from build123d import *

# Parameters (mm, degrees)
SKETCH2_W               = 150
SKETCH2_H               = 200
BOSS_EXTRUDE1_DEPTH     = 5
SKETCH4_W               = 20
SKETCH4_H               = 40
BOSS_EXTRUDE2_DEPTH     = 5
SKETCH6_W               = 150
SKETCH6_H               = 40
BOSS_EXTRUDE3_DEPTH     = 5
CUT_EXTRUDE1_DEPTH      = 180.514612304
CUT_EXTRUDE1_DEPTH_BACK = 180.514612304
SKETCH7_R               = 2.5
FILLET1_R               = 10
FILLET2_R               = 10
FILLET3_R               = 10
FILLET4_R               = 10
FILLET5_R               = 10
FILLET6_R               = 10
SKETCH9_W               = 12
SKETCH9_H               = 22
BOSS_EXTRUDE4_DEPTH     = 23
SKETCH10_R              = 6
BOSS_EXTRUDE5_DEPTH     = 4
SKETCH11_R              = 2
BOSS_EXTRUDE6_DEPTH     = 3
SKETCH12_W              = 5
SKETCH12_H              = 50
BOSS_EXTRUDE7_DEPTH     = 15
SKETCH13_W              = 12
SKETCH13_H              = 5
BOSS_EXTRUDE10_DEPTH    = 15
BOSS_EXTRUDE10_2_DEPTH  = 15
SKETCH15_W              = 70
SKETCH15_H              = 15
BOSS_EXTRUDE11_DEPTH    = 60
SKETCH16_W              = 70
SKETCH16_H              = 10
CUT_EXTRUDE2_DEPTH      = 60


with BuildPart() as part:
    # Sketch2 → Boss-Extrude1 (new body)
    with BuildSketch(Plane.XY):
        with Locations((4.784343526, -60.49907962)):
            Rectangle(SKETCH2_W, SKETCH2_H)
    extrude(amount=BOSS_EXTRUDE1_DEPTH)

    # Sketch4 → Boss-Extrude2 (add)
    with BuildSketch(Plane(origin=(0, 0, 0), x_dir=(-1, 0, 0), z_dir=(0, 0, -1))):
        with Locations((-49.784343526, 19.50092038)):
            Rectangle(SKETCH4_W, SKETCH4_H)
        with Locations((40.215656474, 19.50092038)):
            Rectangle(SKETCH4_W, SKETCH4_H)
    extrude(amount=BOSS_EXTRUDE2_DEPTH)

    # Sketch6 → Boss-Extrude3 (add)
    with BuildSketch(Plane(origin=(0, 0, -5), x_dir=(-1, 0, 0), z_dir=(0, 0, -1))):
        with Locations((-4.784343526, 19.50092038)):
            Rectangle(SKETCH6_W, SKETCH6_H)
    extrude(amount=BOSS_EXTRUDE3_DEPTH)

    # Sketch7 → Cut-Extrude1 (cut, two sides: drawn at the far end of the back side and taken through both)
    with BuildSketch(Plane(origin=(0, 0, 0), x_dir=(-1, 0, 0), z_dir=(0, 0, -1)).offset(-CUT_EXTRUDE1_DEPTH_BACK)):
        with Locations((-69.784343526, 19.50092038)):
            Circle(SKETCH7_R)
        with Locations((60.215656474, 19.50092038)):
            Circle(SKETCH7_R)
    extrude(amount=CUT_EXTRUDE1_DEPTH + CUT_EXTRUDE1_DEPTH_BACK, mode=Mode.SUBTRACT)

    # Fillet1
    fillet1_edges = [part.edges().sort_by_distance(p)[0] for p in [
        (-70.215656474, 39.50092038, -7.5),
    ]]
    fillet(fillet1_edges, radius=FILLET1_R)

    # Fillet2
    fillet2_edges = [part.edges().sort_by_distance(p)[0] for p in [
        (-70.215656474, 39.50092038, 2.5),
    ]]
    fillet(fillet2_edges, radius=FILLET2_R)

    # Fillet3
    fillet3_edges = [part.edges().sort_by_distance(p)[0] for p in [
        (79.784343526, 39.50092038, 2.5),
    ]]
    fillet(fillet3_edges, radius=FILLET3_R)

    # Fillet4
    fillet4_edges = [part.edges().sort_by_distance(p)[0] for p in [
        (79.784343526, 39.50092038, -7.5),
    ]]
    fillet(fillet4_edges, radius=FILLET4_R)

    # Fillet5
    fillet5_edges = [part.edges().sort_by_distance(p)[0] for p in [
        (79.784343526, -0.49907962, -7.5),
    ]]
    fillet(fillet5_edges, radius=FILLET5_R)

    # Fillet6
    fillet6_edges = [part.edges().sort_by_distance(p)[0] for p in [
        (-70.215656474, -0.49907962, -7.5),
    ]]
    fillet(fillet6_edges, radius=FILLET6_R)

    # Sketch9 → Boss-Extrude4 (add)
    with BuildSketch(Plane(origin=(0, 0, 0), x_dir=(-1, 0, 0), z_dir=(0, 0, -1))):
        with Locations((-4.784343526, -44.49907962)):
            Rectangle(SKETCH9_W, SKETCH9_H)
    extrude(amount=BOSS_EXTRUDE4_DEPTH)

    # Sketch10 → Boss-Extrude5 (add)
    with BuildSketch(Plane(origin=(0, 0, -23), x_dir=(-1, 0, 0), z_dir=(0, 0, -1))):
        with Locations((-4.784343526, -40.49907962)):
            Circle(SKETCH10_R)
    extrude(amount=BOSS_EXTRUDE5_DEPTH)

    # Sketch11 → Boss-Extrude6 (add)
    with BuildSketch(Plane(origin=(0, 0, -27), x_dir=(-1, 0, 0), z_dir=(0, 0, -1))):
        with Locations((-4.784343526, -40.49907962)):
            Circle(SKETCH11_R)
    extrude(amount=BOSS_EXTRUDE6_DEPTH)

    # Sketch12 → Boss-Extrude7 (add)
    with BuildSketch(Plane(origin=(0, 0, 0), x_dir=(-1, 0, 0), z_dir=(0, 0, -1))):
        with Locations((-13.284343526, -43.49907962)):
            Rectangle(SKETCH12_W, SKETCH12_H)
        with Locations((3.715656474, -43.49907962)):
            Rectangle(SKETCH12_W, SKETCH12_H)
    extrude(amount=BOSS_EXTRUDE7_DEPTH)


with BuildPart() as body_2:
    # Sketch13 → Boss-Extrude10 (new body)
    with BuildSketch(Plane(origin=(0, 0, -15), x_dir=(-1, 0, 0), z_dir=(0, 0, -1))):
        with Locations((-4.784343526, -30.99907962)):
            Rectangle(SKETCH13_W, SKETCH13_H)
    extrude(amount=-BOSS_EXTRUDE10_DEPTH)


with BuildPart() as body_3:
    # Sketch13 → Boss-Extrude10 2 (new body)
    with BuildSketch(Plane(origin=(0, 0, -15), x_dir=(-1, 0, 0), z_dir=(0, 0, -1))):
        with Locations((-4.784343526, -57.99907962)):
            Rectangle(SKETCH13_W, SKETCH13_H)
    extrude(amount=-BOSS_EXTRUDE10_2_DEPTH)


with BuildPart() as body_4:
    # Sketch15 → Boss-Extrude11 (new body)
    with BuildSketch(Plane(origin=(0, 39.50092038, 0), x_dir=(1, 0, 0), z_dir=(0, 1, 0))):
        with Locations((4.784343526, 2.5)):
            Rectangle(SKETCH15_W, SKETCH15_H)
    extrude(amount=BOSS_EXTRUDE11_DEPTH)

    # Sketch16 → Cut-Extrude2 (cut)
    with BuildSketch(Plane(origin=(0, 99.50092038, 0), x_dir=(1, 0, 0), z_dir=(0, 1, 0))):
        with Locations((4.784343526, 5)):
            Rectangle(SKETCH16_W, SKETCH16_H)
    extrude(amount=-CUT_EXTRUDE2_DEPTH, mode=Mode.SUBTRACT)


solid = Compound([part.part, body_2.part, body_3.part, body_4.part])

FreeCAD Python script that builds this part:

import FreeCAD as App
import Part
import Sketcher
from FreeCAD import Vector


def edges_at(feature, points):
    """Names of the edges that pass closest to the given points."""
    edges = feature.Shape.Edges
    near = lambda p: min(range(len(edges)), key=lambda i: edges[i].distToShape(Part.Vertex(*p))[0])
    return sorted({f"Edge{near(p) + 1}" for p in points})

doc = App.newDocument("Part")
body = doc.addObject("PartDesign::Body", "Body")

# Sketch on XY plane
sketch1 = body.newObject("Sketcher::SketchObject", "Sketch")
sketch1.AttachmentSupport = (doc.getObject("XY_Plane"), [""])
sketch1.MapMode = "FlatFace"
sketch1.addGeometry(Part.LineSegment(Vector(-70, 40, 0), Vector(-70, -160, 0)), False)
sketch1.addGeometry(Part.LineSegment(Vector(-70, -160, 0), Vector(80, -160, 0)), False)
sketch1.addGeometry(Part.LineSegment(Vector(80, -160, 0), Vector(80, 40, 0)), False)
sketch1.addGeometry(Part.LineSegment(Vector(80, 40, 0), Vector(-70, 40, 0)), False)
sketch1.addConstraint(Sketcher.Constraint("Coincident", 0, 2, 1, 1))
sketch1.addConstraint(Sketcher.Constraint("Coincident", 1, 2, 2, 1))
sketch1.addConstraint(Sketcher.Constraint("Coincident", 2, 2, 3, 1))
sketch1.addConstraint(Sketcher.Constraint("Coincident", 3, 2, 0, 1))
sketch1.addConstraint(Sketcher.Constraint("Vertical", 0))
sketch1.addConstraint(Sketcher.Constraint("Horizontal", 1))
sketch1.addConstraint(Sketcher.Constraint("Vertical", 2))
sketch1.addConstraint(Sketcher.Constraint("Horizontal", 3))
sketch1.addConstraint(Sketcher.Constraint("DistanceX", 1, 1, 1, 2, 150.0))
sketch1.addConstraint(Sketcher.Constraint("DistanceY", 0, 2, 0, 1, 200.0))
sketch1.addConstraint(Sketcher.Constraint("DistanceY", 0, 2, -1, 1, 160.49908))
sketch1.addConstraint(Sketcher.Constraint("DistanceX", 0, 2, -1, 1, 70.215656))
pad1 = body.newObject("PartDesign::Pad", "Pad")
pad1.Profile = sketch1
pad1.Length = 5

# Sketch on XY plane
sketch2 = body.newObject("Sketcher::SketchObject", "Sketch001")
sketch2.AttachmentSupport = (doc.getObject("XY_Plane"), [""])
sketch2.MapMode = "FlatFace"
sketch2.addGeometry(Part.LineSegment(Vector(60, 40, 0), Vector(60, 0, 0)), False)
sketch2.addGeometry(Part.LineSegment(Vector(60, 0, 0), Vector(40, 0, 0)), False)
sketch2.addGeometry(Part.LineSegment(Vector(40, 0, 0), Vector(40, 40, 0)), False)
sketch2.addGeometry(Part.LineSegment(Vector(40, 40, 0), Vector(60, 40, 0)), False)
sketch2.addGeometry(Part.LineSegment(Vector(-30, 40, 0), Vector(-30, 0, 0)), False)
sketch2.addGeometry(Part.LineSegment(Vector(-30, 0, 0), Vector(-50, 0, 0)), False)
sketch2.addGeometry(Part.LineSegment(Vector(-50, 0, 0), Vector(-50, 40, 0)), False)
sketch2.addGeometry(Part.LineSegment(Vector(-50, 40, 0), Vector(-30, 40, 0)), False)
sketch2.addConstraint(Sketcher.Constraint("Coincident", 0, 2, 1, 1))
sketch2.addConstraint(Sketcher.Constraint("Coincident", 1, 2, 2, 1))
sketch2.addConstraint(Sketcher.Constraint("Coincident", 2, 2, 3, 1))
sketch2.addConstraint(Sketcher.Constraint("Coincident", 3, 2, 0, 1))
sketch2.addConstraint(Sketcher.Constraint("Coincident", 4, 2, 5, 1))
sketch2.addConstraint(Sketcher.Constraint("Coincident", 5, 2, 6, 1))
sketch2.addConstraint(Sketcher.Constraint("Coincident", 6, 2, 7, 1))
sketch2.addConstraint(Sketcher.Constraint("Coincident", 7, 2, 4, 1))
sketch2.addConstraint(Sketcher.Constraint("Vertical", 0))
sketch2.addConstraint(Sketcher.Constraint("Horizontal", 1))
sketch2.addConstraint(Sketcher.Constraint("Vertical", 2))
sketch2.addConstraint(Sketcher.Constraint("Horizontal", 3))
sketch2.addConstraint(Sketcher.Constraint("Vertical", 4))
sketch2.addConstraint(Sketcher.Constraint("Horizontal", 5))
sketch2.addConstraint(Sketcher.Constraint("Vertical", 6))
sketch2.addConstraint(Sketcher.Constraint("Horizontal", 7))
sketch2.addConstraint(Sketcher.Constraint("Horizontal", 1, 2, 4, 2))
sketch2.addConstraint(Sketcher.Constraint("Horizontal", 3, 2, 6, 2))
sketch2.addConstraint(Sketcher.Constraint("Equal", 3, 5))
sketch2.addConstraint(Sketcher.Constraint("DistanceX", 1, 2, 1, 1, 20.0))
sketch2.addConstraint(Sketcher.Constraint("DistanceY", 0, 2, 0, 1, 40.0))
sketch2.addConstraint(Sketcher.Constraint("DistanceX", 4, 2, 1, 2, 70.0))
sketch2.addConstraint(Sketcher.Constraint("DistanceY", 0, 2, -1, 1, 0.49908))
sketch2.addConstraint(Sketcher.Constraint("DistanceX", -1, 1, 0, 2, 59.784344))
pad2 = body.newObject("PartDesign::Pad", "Pad001")
pad2.Profile = sketch2
pad2.Length = 5
pad2.Reversed = True

# Sketch on XY plane
sketch3 = body.newObject("Sketcher::SketchObject", "Sketch002")
sketch3.AttachmentSupport = (doc.getObject("XY_Plane"), [""])
sketch3.MapMode = "FlatFace"
sketch3.AttachmentOffset = App.Placement(Vector(0, 0, -5), App.Rotation())
sketch3.addGeometry(Part.LineSegment(Vector(80, 40, 0), Vector(80, 0, 0)), False)
sketch3.addGeometry(Part.LineSegment(Vector(80, 0, 0), Vector(-70, 0, 0)), False)
sketch3.addGeometry(Part.LineSegment(Vector(-70, 0, 0), Vector(-70, 40, 0)), False)
sketch3.addGeometry(Part.LineSegment(Vector(-70, 40, 0), Vector(80, 40, 0)), False)
sketch3.addConstraint(Sketcher.Constraint("Coincident", 0, 2, 1, 1))
sketch3.addConstraint(Sketcher.Constraint("Coincident", 1, 2, 2, 1))
sketch3.addConstraint(Sketcher.Constraint("Coincident", 2, 2, 3, 1))
sketch3.addConstraint(Sketcher.Constraint("Coincident", 3, 2, 0, 1))
sketch3.addConstraint(Sketcher.Constraint("Vertical", 0))
sketch3.addConstraint(Sketcher.Constraint("Horizontal", 1))
sketch3.addConstraint(Sketcher.Constraint("Vertical", 2))
sketch3.addConstraint(Sketcher.Constraint("Horizontal", 3))
sketch3.addConstraint(Sketcher.Constraint("DistanceX", 1, 2, 1, 1, 150.0))
sketch3.addConstraint(Sketcher.Constraint("DistanceY", 0, 2, 0, 1, 40.0))
sketch3.addConstraint(Sketcher.Constraint("DistanceY", 0, 2, -1, 1, 0.49908))
sketch3.addConstraint(Sketcher.Constraint("DistanceX", -1, 1, 0, 2, 79.784344))
pad3 = body.newObject("PartDesign::Pad", "Pad002")
pad3.Profile = sketch3
pad3.Length = 5
pad3.Reversed = True

# Sketch on XY plane
sketch4 = body.newObject("Sketcher::SketchObject", "Sketch003")
sketch4.AttachmentSupport = (doc.getObject("XY_Plane"), [""])
sketch4.MapMode = "FlatFace"
sketch4.addGeometry(Part.Circle(Vector(69.8, 19.5, 0), Vector(0, 0, 1), 2.5), False)
sketch4.addGeometry(Part.Circle(Vector(-60.2, 19.5, 0), Vector(0, 0, 1), 2.5), False)
sketch4.addConstraint(Sketcher.Constraint("Equal", 0, 1))
sketch4.addConstraint(Sketcher.Constraint("Horizontal", 0, 3, 1, 3))
sketch4.addConstraint(Sketcher.Constraint("Diameter", 0, 5.0))
sketch4.addConstraint(Sketcher.Constraint("DistanceX", 1, 3, 0, 3, 130.0))
sketch4.addConstraint(Sketcher.Constraint("DistanceY", -1, 1, 0, 3, 19.50092))
sketch4.addConstraint(Sketcher.Constraint("DistanceX", -1, 1, 0, 3, 69.784344))
pocket1 = body.newObject("PartDesign::Pocket", "Pocket")
pocket1.Profile = sketch4
pocket1.Type = "ThroughAll"
pocket1.Midplane = True
doc.recompute()

fillet = body.newObject("PartDesign::Fillet", "Fillet")
fillet.Base = (pocket1, edges_at(pocket1, [(-70.216, 39.501, -7.5)]))
fillet.Radius = 10
doc.recompute()

fillet2 = body.newObject("PartDesign::Fillet", "Fillet001")
fillet2.Base = (fillet, edges_at(fillet, [(-70.216, 39.501, 2.5)]))
fillet2.Radius = 10
doc.recompute()

fillet3 = body.newObject("PartDesign::Fillet", "Fillet002")
fillet3.Base = (fillet2, edges_at(fillet2, [(79.784, 39.501, 2.5)]))
fillet3.Radius = 10
doc.recompute()

fillet4 = body.newObject("PartDesign::Fillet", "Fillet003")
fillet4.Base = (fillet3, edges_at(fillet3, [(79.784, 39.501, -7.5)]))
fillet4.Radius = 10
doc.recompute()

fillet5 = body.newObject("PartDesign::Fillet", "Fillet004")
fillet5.Base = (fillet4, edges_at(fillet4, [(79.784, -0.499, -7.5)]))
fillet5.Radius = 10
doc.recompute()

fillet6 = body.newObject("PartDesign::Fillet", "Fillet005")
fillet6.Base = (fillet5, edges_at(fillet5, [(-70.216, -0.499, -7.5)]))
fillet6.Radius = 10

# Sketch on XY plane
sketch5 = body.newObject("Sketcher::SketchObject", "Sketch004")
sketch5.AttachmentSupport = (doc.getObject("XY_Plane"), [""])
sketch5.MapMode = "FlatFace"
sketch5.addGeometry(Part.LineSegment(Vector(11, -33, 0), Vector(11, -55, 0)), False)
sketch5.addGeometry(Part.LineSegment(Vector(11, -55, 0), Vector(-1, -55, 0)), False)
sketch5.addGeometry(Part.LineSegment(Vector(-1, -55, 0), Vector(-1, -33, 0)), False)
sketch5.addGeometry(Part.LineSegment(Vector(-1, -33, 0), Vector(11, -33, 0)), False)
sketch5.addConstraint(Sketcher.Constraint("Coincident", 0, 2, 1, 1))
sketch5.addConstraint(Sketcher.Constraint("Coincident", 1, 2, 2, 1))
sketch5.addConstraint(Sketcher.Constraint("Coincident", 2, 2, 3, 1))
sketch5.addConstraint(Sketcher.Constraint("Coincident", 3, 2, 0, 1))
sketch5.addConstraint(Sketcher.Constraint("Vertical", 0))
sketch5.addConstraint(Sketcher.Constraint("Horizontal", 1))
sketch5.addConstraint(Sketcher.Constraint("Vertical", 2))
sketch5.addConstraint(Sketcher.Constraint("Horizontal", 3))
sketch5.addConstraint(Sketcher.Constraint("DistanceX", 1, 2, 1, 1, 12.0))
sketch5.addConstraint(Sketcher.Constraint("DistanceY", 0, 2, 0, 1, 22.0))
sketch5.addConstraint(Sketcher.Constraint("DistanceY", 0, 2, -1, 1, 55.49908))
sketch5.addConstraint(Sketcher.Constraint("DistanceX", -1, 1, 0, 2, 10.784344))
pad4 = body.newObject("PartDesign::Pad", "Pad003")
pad4.Profile = sketch5
pad4.Length = 23
pad4.Reversed = True

# Sketch on XY plane
sketch6 = body.newObject("Sketcher::SketchObject", "Sketch005")
sketch6.AttachmentSupport = (doc.getObject("XY_Plane"), [""])
sketch6.MapMode = "FlatFace"
sketch6.AttachmentOffset = App.Placement(Vector(0, 0, -23), App.Rotation())
sketch6.addGeometry(Part.Circle(Vector(5, -40, 0), Vector(0, 0, 1), 6), False)
sketch6.addConstraint(Sketcher.Constraint("Diameter", 0, 12.0))
sketch6.addConstraint(Sketcher.Constraint("DistanceY", 0, 3, -1, 1, 40.49908))
sketch6.addConstraint(Sketcher.Constraint("DistanceX", -1, 1, 0, 3, 4.784344))
pad5 = body.newObject("PartDesign::Pad", "Pad004")
pad5.Profile = sketch6
pad5.Length = 4
pad5.Reversed = True

# Sketch on XY plane
sketch7 = body.newObject("Sketcher::SketchObject", "Sketch006")
sketch7.AttachmentSupport = (doc.getObject("XY_Plane"), [""])
sketch7.MapMode = "FlatFace"
sketch7.AttachmentOffset = App.Placement(Vector(0, 0, -27), App.Rotation())
sketch7.addGeometry(Part.Circle(Vector(4.8, -40.5, 0), Vector(0, 0, 1), 2), False)
sketch7.addConstraint(Sketcher.Constraint("Diameter", 0, 4.0))
sketch7.addConstraint(Sketcher.Constraint("DistanceY", 0, 3, -1, 1, 40.49908))
sketch7.addConstraint(Sketcher.Constraint("DistanceX", -1, 1, 0, 3, 4.784344))
pad6 = body.newObject("PartDesign::Pad", "Pad005")
pad6.Profile = sketch7
pad6.Length = 3
pad6.Reversed = True

# Sketch on XY plane
sketch8 = body.newObject("Sketcher::SketchObject", "Sketch007")
sketch8.AttachmentSupport = (doc.getObject("XY_Plane"), [""])
sketch8.MapMode = "FlatFace"
sketch8.addGeometry(Part.LineSegment(Vector(16, -18, 0), Vector(16, -68, 0)), False)
sketch8.addGeometry(Part.LineSegment(Vector(16, -68, 0), Vector(11, -68, 0)), False)
sketch8.addGeometry(Part.LineSegment(Vector(11, -68, 0), Vector(11, -18, 0)), False)
sketch8.addGeometry(Part.LineSegment(Vector(11, -18, 0), Vector(16, -18, 0)), False)
sketch8.addGeometry(Part.LineSegment(Vector(-1, -18, 0), Vector(-1, -68, 0)), False)
sketch8.addGeometry(Part.LineSegment(Vector(-1, -68, 0), Vector(-6, -68, 0)), False)
sketch8.addGeometry(Part.LineSegment(Vector(-6, -68, 0), Vector(-6, -18, 0)), False)
sketch8.addGeometry(Part.LineSegment(Vector(-6, -18, 0), Vector(-1, -18, 0)), False)
sketch8.addConstraint(Sketcher.Constraint("Coincident", 0, 2, 1, 1))
sketch8.addConstraint(Sketcher.Constraint("Coincident", 1, 2, 2, 1))
sketch8.addConstraint(Sketcher.Constraint("Coincident", 2, 2, 3, 1))
sketch8.addConstraint(Sketcher.Constraint("Coincident", 3, 2, 0, 1))
sketch8.addConstraint(Sketcher.Constraint("Coincident", 4, 2, 5, 1))
sketch8.addConstraint(Sketcher.Constraint("Coincident", 5, 2, 6, 1))
sketch8.addConstraint(Sketcher.Constraint("Coincident", 6, 2, 7, 1))
sketch8.addConstraint(Sketcher.Constraint("Coincident", 7, 2, 4, 1))
sketch8.addConstraint(Sketcher.Constraint("Vertical", 0))
sketch8.addConstraint(Sketcher.Constraint("Horizontal", 1))
sketch8.addConstraint(Sketcher.Constraint("Vertical", 2))
sketch8.addConstraint(Sketcher.Constraint("Horizontal", 3))
sketch8.addConstraint(Sketcher.Constraint("Vertical", 4))
sketch8.addConstraint(Sketcher.Constraint("Horizontal", 5))
sketch8.addConstraint(Sketcher.Constraint("Vertical", 6))
sketch8.addConstraint(Sketcher.Constraint("Horizontal", 7))
sketch8.addConstraint(Sketcher.Constraint("Horizontal", 1, 2, 4, 2))
sketch8.addConstraint(Sketcher.Constraint("Horizontal", 3, 2, 6, 2))
sketch8.addConstraint(Sketcher.Constraint("Equal", 3, 5))
sketch8.addConstraint(Sketcher.Constraint("DistanceX", 1, 2, 1, 1, 5.0))
sketch8.addConstraint(Sketcher.Constraint("DistanceY", 0, 2, 0, 1, 50.0))
sketch8.addConstraint(Sketcher.Constraint("DistanceX", 4, 2, 1, 2, 12.0))
sketch8.addConstraint(Sketcher.Constraint("DistanceY", 0, 2, -1, 1, 68.49908))
sketch8.addConstraint(Sketcher.Constraint("DistanceX", -1, 1, 0, 2, 15.784344))
pad7 = body.newObject("PartDesign::Pad", "Pad006")
pad7.Profile = sketch8
pad7.Length = 15
pad7.Reversed = True
body2 = doc.addObject("PartDesign::Body", "Body001")

# Sketch on XY plane
sketch9 = body2.newObject("Sketcher::SketchObject", "Sketch008")
sketch9.AttachmentSupport = (doc.getObject("XY_Plane001"), [""])
sketch9.MapMode = "FlatFace"
sketch9.AttachmentOffset = App.Placement(Vector(0, 0, -15), App.Rotation())
sketch9.addGeometry(Part.LineSegment(Vector(11, -28, 0), Vector(11, -33, 0)), False)
sketch9.addGeometry(Part.LineSegment(Vector(11, -33, 0), Vector(-1, -33, 0)), False)
sketch9.addGeometry(Part.LineSegment(Vector(-1, -33, 0), Vector(-1, -28, 0)), False)
sketch9.addGeometry(Part.LineSegment(Vector(-1, -28, 0), Vector(11, -28, 0)), False)
sketch9.addConstraint(Sketcher.Constraint("Coincident", 0, 2, 1, 1))
sketch9.addConstraint(Sketcher.Constraint("Coincident", 1, 2, 2, 1))
sketch9.addConstraint(Sketcher.Constraint("Coincident", 2, 2, 3, 1))
sketch9.addConstraint(Sketcher.Constraint("Coincident", 3, 2, 0, 1))
sketch9.addConstraint(Sketcher.Constraint("Vertical", 0))
sketch9.addConstraint(Sketcher.Constraint("Horizontal", 1))
sketch9.addConstraint(Sketcher.Constraint("Vertical", 2))
sketch9.addConstraint(Sketcher.Constraint("Horizontal", 3))
sketch9.addConstraint(Sketcher.Constraint("DistanceX", 1, 2, 1, 1, 12.0))
sketch9.addConstraint(Sketcher.Constraint("DistanceY", 0, 2, 0, 1, 5.0))
sketch9.addConstraint(Sketcher.Constraint("DistanceY", 0, 2, -1, 1, 33.49908))
sketch9.addConstraint(Sketcher.Constraint("DistanceX", -1, 1, 0, 2, 10.784344))
pad8 = body2.newObject("PartDesign::Pad", "Pad007")
pad8.Profile = sketch9
pad8.Length = 15
body3 = doc.addObject("PartDesign::Body", "Body002")

# Sketch on XY plane
sketch10 = body3.newObject("Sketcher::SketchObject", "Sketch009")
sketch10.AttachmentSupport = (doc.getObject("XY_Plane002"), [""])
sketch10.MapMode = "FlatFace"
sketch10.AttachmentOffset = App.Placement(Vector(0, 0, -15), App.Rotation())
sketch10.addGeometry(Part.LineSegment(Vector(11, -55, 0), Vector(11, -60, 0)), False)
sketch10.addGeometry(Part.LineSegment(Vector(11, -60, 0), Vector(-1, -60, 0)), False)
sketch10.addGeometry(Part.LineSegment(Vector(-1, -60, 0), Vector(-1, -55, 0)), False)
sketch10.addGeometry(Part.LineSegment(Vector(-1, -55, 0), Vector(11, -55, 0)), False)
sketch10.addConstraint(Sketcher.Constraint("Coincident", 0, 2, 1, 1))
sketch10.addConstraint(Sketcher.Constraint("Coincident", 1, 2, 2, 1))
sketch10.addConstraint(Sketcher.Constraint("Coincident", 2, 2, 3, 1))
sketch10.addConstraint(Sketcher.Constraint("Coincident", 3, 2, 0, 1))
sketch10.addConstraint(Sketcher.Constraint("Vertical", 0))
sketch10.addConstraint(Sketcher.Constraint("Horizontal", 1))
sketch10.addConstraint(Sketcher.Constraint("Vertical", 2))
sketch10.addConstraint(Sketcher.Constraint("Horizontal", 3))
sketch10.addConstraint(Sketcher.Constraint("DistanceX", 1, 2, 1, 1, 12.0))
sketch10.addConstraint(Sketcher.Constraint("DistanceY", 0, 2, 0, 1, 5.0))
sketch10.addConstraint(Sketcher.Constraint("DistanceY", 0, 2, -1, 1, 60.49908))
sketch10.addConstraint(Sketcher.Constraint("DistanceX", -1, 1, 0, 2, 10.784344))
pad9 = body3.newObject("PartDesign::Pad", "Pad008")
pad9.Profile = sketch10
pad9.Length = 15
body4 = doc.addObject("PartDesign::Body", "Body003")

# Sketch on XZ plane
sketch11 = body4.newObject("Sketcher::SketchObject", "Sketch010")
sketch11.AttachmentSupport = (doc.getObject("XZ_Plane003"), [""])
sketch11.MapMode = "FlatFace"
sketch11.AttachmentOffset = App.Placement(Vector(0, 0, -39.50092), App.Rotation())
sketch11.addGeometry(Part.LineSegment(Vector(-30, -10, 0), Vector(-30, 5, 0)), False)
sketch11.addGeometry(Part.LineSegment(Vector(-30, 5, 0), Vector(40, 5, 0)), False)
sketch11.addGeometry(Part.LineSegment(Vector(40, 5, 0), Vector(40, -10, 0)), False)
sketch11.addGeometry(Part.LineSegment(Vector(40, -10, 0), Vector(-30, -10, 0)), False)
sketch11.addConstraint(Sketcher.Constraint("Coincident", 0, 2, 1, 1))
sketch11.addConstraint(Sketcher.Constraint("Coincident", 1, 2, 2, 1))
sketch11.addConstraint(Sketcher.Constraint("Coincident", 2, 2, 3, 1))
sketch11.addConstraint(Sketcher.Constraint("Coincident", 3, 2, 0, 1))
sketch11.addConstraint(Sketcher.Constraint("Vertical", 0))
sketch11.addConstraint(Sketcher.Constraint("Horizontal", 1))
sketch11.addConstraint(Sketcher.Constraint("Vertical", 2))
sketch11.addConstraint(Sketcher.Constraint("Horizontal", 3))
sketch11.addConstraint(Sketcher.Constraint("DistanceX", 1, 1, 1, 2, 70.0))
sketch11.addConstraint(Sketcher.Constraint("DistanceY", 0, 1, 0, 2, 15.0))
sketch11.addConstraint(Sketcher.Constraint("DistanceY", -1, 1, 0, 2, 5.0))
sketch11.addConstraint(Sketcher.Constraint("DistanceX", 0, 2, -1, 1, 30.215656))
pad10 = body4.newObject("PartDesign::Pad", "Pad009")
pad10.Profile = sketch11
pad10.Length = 60
pad10.Reversed = True

# Sketch on XZ plane
sketch12 = body4.newObject("Sketcher::SketchObject", "Sketch011")
sketch12.AttachmentSupport = (doc.getObject("XZ_Plane003"), [""])
sketch12.MapMode = "FlatFace"
sketch12.AttachmentOffset = App.Placement(Vector(0, 0, -99.50092), App.Rotation())
sketch12.addGeometry(Part.LineSegment(Vector(-30, -10, 0), Vector(-30, 0, 0)), False)
sketch12.addGeometry(Part.LineSegment(Vector(-30, 0, 0), Vector(40, 0, 0)), False)
sketch12.addGeometry(Part.LineSegment(Vector(40, 0, 0), Vector(40, -10, 0)), False)
sketch12.addGeometry(Part.LineSegment(Vector(40, -10, 0), Vector(-30, -10, 0)), False)
sketch12.addConstraint(Sketcher.Constraint("Coincident", 0, 2, 1, 1))
sketch12.addConstraint(Sketcher.Constraint("Coincident", 1, 2, 2, 1))
sketch12.addConstraint(Sketcher.Constraint("Coincident", 2, 2, 3, 1))
sketch12.addConstraint(Sketcher.Constraint("Coincident", 3, 2, 0, 1))
sketch12.addConstraint(Sketcher.Constraint("Vertical", 0))
sketch12.addConstraint(Sketcher.Constraint("Horizontal", 1))
sketch12.addConstraint(Sketcher.Constraint("Vertical", 2))
sketch12.addConstraint(Sketcher.Constraint("Horizontal", 3))
sketch12.addConstraint(Sketcher.Constraint("PointOnObject", 0, 2, -1))
sketch12.addConstraint(Sketcher.Constraint("DistanceX", 1, 1, 1, 2, 70.0))
sketch12.addConstraint(Sketcher.Constraint("DistanceY", 0, 1, 0, 2, 10.0))
sketch12.addConstraint(Sketcher.Constraint("DistanceX", 0, 2, -1, 1, 30.215656))
pocket2 = body4.newObject("PartDesign::Pocket", "Pocket001")
pocket2.Profile = sketch12
pocket2.Length = 60
pocket2.Reversed = True

doc.recompute()
